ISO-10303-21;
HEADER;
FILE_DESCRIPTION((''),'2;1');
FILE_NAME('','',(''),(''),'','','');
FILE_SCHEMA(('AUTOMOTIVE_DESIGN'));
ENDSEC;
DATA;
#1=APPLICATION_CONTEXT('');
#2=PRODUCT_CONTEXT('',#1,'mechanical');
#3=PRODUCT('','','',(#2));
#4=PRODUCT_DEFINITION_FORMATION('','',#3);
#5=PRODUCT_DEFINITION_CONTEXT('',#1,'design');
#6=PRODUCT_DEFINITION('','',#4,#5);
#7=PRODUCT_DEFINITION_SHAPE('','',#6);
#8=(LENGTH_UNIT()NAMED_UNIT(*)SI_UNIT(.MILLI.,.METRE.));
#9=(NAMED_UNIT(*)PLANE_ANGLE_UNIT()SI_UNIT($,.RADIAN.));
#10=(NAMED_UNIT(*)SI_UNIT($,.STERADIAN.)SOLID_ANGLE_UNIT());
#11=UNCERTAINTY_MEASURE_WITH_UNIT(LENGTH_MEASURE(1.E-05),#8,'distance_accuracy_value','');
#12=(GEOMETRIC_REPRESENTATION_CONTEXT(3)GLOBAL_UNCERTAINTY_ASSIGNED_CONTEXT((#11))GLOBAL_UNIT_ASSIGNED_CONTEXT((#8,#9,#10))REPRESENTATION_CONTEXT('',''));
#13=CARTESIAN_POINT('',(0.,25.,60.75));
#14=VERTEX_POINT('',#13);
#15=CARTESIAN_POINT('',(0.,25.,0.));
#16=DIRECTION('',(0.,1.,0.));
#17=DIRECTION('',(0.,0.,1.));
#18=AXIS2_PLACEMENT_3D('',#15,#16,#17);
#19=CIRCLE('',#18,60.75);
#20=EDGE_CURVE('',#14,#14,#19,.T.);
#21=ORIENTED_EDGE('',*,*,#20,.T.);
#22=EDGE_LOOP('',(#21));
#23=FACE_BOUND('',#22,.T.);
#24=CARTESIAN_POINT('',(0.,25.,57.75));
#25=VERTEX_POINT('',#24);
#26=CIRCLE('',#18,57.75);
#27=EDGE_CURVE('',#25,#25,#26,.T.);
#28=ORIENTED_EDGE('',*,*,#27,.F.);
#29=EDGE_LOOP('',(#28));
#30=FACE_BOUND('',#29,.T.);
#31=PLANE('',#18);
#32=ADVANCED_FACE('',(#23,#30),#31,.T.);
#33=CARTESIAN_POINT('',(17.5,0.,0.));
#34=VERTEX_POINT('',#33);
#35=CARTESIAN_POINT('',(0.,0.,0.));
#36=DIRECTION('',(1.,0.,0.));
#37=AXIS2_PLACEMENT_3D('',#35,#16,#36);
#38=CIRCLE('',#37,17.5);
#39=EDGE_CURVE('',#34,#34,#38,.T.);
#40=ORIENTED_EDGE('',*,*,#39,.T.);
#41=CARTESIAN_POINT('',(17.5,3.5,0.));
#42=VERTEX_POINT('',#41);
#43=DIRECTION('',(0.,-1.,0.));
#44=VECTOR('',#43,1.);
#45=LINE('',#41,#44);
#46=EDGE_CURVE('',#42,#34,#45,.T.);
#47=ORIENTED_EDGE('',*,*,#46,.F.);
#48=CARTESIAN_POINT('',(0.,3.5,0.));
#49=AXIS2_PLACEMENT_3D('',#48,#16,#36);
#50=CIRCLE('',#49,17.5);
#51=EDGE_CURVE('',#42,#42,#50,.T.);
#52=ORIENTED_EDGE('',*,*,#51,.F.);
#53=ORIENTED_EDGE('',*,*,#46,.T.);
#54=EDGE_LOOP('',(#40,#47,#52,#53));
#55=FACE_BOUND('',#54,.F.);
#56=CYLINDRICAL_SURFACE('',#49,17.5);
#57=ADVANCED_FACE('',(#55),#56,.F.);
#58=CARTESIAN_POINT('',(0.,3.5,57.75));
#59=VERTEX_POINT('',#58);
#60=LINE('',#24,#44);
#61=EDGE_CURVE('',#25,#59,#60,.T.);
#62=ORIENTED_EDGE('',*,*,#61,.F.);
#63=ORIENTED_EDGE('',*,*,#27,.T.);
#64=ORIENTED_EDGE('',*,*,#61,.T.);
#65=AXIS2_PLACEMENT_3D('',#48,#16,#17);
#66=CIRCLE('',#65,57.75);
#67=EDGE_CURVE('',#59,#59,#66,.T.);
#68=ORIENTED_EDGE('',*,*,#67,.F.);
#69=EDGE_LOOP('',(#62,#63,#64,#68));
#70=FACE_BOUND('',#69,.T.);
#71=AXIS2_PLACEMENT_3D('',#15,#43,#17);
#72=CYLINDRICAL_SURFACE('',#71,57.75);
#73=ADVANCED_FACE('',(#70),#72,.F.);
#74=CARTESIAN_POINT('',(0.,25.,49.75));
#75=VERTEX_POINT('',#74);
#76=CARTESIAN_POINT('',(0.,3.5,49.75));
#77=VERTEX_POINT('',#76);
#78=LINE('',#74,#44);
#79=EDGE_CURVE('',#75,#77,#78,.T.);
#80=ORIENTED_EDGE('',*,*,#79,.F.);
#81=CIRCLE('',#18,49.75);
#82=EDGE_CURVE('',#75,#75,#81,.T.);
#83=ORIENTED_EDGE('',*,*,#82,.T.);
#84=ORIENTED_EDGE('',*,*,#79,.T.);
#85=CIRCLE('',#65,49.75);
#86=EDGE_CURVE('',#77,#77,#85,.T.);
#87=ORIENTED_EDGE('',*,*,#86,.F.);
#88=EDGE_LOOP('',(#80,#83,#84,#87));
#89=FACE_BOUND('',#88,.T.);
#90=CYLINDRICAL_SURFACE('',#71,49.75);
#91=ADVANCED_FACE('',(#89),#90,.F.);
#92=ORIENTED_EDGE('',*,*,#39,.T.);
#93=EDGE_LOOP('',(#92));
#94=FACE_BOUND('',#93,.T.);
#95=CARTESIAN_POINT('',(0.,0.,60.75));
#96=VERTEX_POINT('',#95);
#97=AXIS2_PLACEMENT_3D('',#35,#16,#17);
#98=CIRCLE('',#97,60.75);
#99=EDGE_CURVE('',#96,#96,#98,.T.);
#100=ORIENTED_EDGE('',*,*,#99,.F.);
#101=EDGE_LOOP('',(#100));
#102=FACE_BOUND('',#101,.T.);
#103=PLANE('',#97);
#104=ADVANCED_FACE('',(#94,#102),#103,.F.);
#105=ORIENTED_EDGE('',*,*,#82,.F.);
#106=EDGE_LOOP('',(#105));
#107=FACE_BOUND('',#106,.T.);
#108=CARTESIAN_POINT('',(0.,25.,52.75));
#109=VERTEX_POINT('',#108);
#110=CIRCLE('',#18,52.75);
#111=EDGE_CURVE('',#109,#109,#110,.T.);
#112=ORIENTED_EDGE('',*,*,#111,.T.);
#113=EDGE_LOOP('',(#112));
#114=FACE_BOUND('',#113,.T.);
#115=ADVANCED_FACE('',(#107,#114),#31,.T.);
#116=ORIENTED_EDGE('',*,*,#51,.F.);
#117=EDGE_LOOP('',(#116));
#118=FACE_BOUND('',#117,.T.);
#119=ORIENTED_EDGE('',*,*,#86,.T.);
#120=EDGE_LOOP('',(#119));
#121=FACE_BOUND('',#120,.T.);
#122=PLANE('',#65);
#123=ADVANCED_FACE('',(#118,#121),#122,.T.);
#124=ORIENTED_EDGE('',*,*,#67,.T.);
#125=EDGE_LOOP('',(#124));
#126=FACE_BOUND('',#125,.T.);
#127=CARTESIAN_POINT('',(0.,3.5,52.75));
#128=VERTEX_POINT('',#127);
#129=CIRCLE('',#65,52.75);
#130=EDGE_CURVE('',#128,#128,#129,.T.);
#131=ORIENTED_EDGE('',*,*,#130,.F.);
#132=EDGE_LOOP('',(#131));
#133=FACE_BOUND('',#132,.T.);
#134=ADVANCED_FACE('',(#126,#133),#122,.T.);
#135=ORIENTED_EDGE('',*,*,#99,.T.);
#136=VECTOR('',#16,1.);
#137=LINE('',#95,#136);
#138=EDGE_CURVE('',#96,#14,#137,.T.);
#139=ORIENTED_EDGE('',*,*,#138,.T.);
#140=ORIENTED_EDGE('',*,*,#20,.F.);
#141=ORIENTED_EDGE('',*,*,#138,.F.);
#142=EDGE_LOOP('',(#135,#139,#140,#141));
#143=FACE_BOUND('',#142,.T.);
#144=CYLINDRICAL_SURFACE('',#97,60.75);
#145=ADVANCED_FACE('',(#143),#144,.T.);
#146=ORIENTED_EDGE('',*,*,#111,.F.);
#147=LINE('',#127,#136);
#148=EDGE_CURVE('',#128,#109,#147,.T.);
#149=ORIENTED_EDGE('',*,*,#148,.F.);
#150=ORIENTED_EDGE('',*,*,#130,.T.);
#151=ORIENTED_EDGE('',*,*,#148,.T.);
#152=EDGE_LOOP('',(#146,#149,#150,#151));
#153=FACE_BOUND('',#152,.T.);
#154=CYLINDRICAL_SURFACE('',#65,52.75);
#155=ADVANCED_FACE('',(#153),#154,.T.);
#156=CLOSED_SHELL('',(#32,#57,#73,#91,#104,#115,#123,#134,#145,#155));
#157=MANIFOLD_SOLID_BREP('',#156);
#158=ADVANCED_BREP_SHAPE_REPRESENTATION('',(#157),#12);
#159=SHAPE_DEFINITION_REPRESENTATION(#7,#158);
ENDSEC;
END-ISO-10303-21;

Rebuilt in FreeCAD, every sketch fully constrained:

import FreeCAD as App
import Part
import Sketcher


def add_polygon(sketch, points):
    """Adds a closed chain of lines whose ends are joined by coincident constraints."""
    first, n = sketch.GeometryCount, len(points)
    for a, b in zip(points, points[1:] + points[:1]):
        sketch.addGeometry(Part.LineSegment(App.Vector(*a, 0), App.Vector(*b, 0)), False)
    for i in range(n):
        sketch.addConstraint(Sketcher.Constraint("Coincident", first + i, 2, first + (i + 1) % n, 1))

doc = App.newDocument("Part")
body = doc.addObject("PartDesign::Body", "Body")

sketch1 = body.newObject("Sketcher::SketchObject", "Sketch")
sketch1.AttachmentSupport = (doc.getObject("YZ_Plane"), [""])
sketch1.MapMode = "FlatFace"
add_polygon(sketch1, [(0, 60.8), (0, 0), (3.5, 0), (3.5, 49.8), (25, 49.8), (25, 52.8), (3.5, 52.8), (3.5, 57.8), (25, 57.8), (25, 60.8)])
sketch1.addConstraint(Sketcher.Constraint("Vertical", 0))
sketch1.addConstraint(Sketcher.Constraint("Horizontal", 1))
sketch1.addConstraint(Sketcher.Constraint("Vertical", 2))
sketch1.addConstraint(Sketcher.Constraint("Horizontal", 3))
sketch1.addConstraint(Sketcher.Constraint("Vertical", 4))
sketch1.addConstraint(Sketcher.Constraint("Horizontal", 5))
sketch1.addConstraint(Sketcher.Constraint("Vertical", 6))
sketch1.addConstraint(Sketcher.Constraint("Horizontal", 7))
sketch1.addConstraint(Sketcher.Constraint("Vertical", 8))
sketch1.addConstraint(Sketcher.Constraint("Horizontal", 9))
sketch1.addConstraint(Sketcher.Constraint("Coincident", 0, 2, -1, 1))
sketch1.addConstraint(Sketcher.Constraint("Vertical", 2, 2, 5, 2))
sketch1.addConstraint(Sketcher.Constraint("Vertical", 4, 2, 7, 2))
sketch1.addConstraint(Sketcher.Constraint("Equal", 4, 8))
sketch1.addConstraint(Sketcher.Constraint("DistanceX", 9, 2, 9, 1, 25.0))
sketch1.addConstraint(Sketcher.Constraint("DistanceY", 4, 1, 4, 2, 3.0))
sketch1.addConstraint(Sketcher.Constraint("DistanceY", 6, 1, 6, 2, 5.0))
sketch1.addConstraint(Sketcher.Constraint("DistanceX", 1, 1, 1, 2, 3.5))
sketch1.addConstraint(Sketcher.Constraint("DistanceY", 0, 2, 0, 1, 60.75))
revolution = body.newObject("PartDesign::Revolution", "Revolution")
revolution.Profile = sketch1
revolution.ReferenceAxis = (sketch1, ["H_Axis"])
revolution.Angle = 360

sketch2 = body.newObject("Sketcher::SketchObject", "Sketch001")
sketch2.AttachmentSupport = (doc.getObject("XZ_Plane"), [""])
sketch2.MapMode = "FlatFace"
sketch2.AttachmentOffset = App.Placement(App.Vector(0, 0, -3.5), App.Rotation())
sketch2.addGeometry(Part.Circle(App.Vector(0, 0, 0), App.Vector(0, 0, 1), 18), False)
sketch2.addConstraint(Sketcher.Constraint("Coincident", 0, 3, -1, 1))
sketch2.addConstraint(Sketcher.Constraint("Diameter", 0, 35.0))
pocket1 = body.newObject("PartDesign::Pocket", "Pocket")
pocket1.Profile = sketch2
pocket1.Length = 40
pocket1.Reversed = True

doc.recompute()
